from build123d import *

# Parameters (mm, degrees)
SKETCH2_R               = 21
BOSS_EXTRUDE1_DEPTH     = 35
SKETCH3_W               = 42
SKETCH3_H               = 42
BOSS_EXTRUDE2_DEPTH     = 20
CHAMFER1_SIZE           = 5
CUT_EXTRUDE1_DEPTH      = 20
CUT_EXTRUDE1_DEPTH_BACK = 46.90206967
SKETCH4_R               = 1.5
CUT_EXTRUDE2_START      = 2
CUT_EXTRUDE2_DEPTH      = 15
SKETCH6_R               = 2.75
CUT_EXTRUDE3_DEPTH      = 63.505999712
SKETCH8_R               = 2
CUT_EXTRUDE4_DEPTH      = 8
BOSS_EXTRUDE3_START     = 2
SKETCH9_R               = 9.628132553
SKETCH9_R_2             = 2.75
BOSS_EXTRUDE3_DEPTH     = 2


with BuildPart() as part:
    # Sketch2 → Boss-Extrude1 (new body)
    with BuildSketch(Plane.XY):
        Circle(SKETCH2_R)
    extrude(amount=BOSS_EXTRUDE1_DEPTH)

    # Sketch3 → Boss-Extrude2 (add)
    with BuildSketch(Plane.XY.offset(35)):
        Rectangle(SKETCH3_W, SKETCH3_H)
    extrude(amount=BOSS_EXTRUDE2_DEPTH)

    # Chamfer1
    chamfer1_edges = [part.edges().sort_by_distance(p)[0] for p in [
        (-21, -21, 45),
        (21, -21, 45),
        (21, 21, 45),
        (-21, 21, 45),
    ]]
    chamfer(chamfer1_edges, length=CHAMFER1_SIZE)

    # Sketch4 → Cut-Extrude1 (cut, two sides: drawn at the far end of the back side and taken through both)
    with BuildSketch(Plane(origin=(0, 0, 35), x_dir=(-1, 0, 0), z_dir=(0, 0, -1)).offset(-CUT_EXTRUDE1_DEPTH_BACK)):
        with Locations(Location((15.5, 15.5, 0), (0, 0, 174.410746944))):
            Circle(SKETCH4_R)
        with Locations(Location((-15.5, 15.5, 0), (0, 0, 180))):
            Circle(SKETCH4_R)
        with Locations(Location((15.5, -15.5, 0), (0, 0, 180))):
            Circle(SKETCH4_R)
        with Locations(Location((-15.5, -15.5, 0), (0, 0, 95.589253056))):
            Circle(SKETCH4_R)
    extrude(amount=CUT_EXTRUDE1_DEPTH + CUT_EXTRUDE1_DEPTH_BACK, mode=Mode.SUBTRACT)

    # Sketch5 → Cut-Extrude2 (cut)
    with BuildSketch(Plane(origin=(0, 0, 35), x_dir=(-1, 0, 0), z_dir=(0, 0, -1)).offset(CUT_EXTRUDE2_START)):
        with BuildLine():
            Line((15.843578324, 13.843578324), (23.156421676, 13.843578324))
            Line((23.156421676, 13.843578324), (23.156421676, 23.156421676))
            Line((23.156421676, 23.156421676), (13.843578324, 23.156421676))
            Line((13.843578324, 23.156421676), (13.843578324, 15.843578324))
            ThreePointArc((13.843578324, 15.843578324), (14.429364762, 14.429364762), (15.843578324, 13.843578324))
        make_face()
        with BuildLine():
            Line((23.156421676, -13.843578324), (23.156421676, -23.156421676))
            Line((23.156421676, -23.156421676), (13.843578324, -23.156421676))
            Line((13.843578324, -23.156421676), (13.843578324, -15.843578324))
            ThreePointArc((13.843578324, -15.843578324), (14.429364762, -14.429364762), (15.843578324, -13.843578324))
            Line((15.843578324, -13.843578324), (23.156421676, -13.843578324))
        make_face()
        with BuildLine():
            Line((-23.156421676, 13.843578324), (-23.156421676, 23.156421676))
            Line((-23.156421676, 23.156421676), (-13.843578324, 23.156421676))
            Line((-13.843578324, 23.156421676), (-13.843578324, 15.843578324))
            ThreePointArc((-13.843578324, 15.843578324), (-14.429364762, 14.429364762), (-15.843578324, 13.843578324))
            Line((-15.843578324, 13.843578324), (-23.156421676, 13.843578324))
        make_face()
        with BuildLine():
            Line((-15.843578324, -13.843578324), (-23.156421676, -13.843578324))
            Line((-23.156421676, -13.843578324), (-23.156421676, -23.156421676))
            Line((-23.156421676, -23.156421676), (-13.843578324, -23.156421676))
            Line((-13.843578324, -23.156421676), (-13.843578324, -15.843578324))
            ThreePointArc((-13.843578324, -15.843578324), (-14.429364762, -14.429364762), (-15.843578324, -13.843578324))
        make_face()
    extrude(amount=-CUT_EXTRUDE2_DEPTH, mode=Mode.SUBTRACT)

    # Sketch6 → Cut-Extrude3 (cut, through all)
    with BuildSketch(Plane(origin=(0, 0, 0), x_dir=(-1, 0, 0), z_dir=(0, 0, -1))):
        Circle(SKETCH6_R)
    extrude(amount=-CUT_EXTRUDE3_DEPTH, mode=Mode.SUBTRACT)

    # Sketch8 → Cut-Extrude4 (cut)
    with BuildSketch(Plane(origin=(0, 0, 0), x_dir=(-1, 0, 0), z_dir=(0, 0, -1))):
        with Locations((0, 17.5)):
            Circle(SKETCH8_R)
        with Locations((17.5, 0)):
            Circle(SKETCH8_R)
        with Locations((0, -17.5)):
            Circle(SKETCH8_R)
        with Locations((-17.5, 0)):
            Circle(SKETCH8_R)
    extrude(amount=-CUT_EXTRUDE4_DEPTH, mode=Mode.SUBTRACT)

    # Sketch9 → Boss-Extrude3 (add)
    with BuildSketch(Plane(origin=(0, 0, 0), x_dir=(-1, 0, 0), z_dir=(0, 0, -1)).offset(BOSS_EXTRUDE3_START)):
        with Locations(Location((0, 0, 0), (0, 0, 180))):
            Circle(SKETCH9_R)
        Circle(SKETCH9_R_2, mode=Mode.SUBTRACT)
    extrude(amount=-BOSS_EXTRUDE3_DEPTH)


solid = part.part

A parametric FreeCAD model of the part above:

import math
import FreeCAD as App
import Part
import Sketcher
from FreeCAD import Vector
Q = App.Units.Quantity


def edges_at(feature, points):
    """Names of the edges that pass closest to the given points."""
    edges = feature.Shape.Edges
    near = lambda p: min(range(len(edges)), key=lambda i: edges[i].distToShape(Part.Vertex(*p))[0])
    return sorted({f"Edge{near(p) + 1}" for p in points})

doc = App.newDocument("Part")
body = doc.addObject("PartDesign::Body", "Body")

# Sketch on XY plane
sketch1 = body.newObject("Sketcher::SketchObject", "Sketch")
sketch1.AttachmentSupport = (doc.getObject("XY_Plane"), [""])
sketch1.MapMode = "FlatFace"
sketch1.addGeometry(Part.Circle(Vector(0, 0, 0), Vector(0, 0, 1), 21), False)
sketch1.addConstraint(Sketcher.Constraint("Coincident", 0, 3, -1, 1))
sketch1.addConstraint(Sketcher.Constraint("Diameter", 0, Q("42 mm")))
pad1 = body.newObject("PartDesign::Pad", "Pad")
pad1.Profile = sketch1
pad1.Length = 35

# Sketch on XY plane
sketch2 = body.newObject("Sketcher::SketchObject", "Sketch001")
sketch2.AttachmentSupport = (doc.getObject("XY_Plane"), [""])
sketch2.MapMode = "FlatFace"
sketch2.AttachmentOffset = App.Placement(Vector(0, 0, 35), App.Rotation())
sketch2.addGeometry(Part.LineSegment(Vector(-21, 21, 0), Vector(-21, -21, 0)), False)
sketch2.addGeometry(Part.LineSegment(Vector(-21, -21, 0), Vector(21, -21, 0)), False)
sketch2.addGeometry(Part.LineSegment(Vector(21, -21, 0), Vector(21, 21, 0)), False)
sketch2.addGeometry(Part.LineSegment(Vector(21, 21, 0), Vector(-21, 21, 0)), False)
sketch2.addConstraint(Sketcher.Constraint("Coincident", 0, 2, 1, 1))
sketch2.addConstraint(Sketcher.Constraint("Coincident", 1, 2, 2, 1))
sketch2.addConstraint(Sketcher.Constraint("Coincident", 2, 2, 3, 1))
sketch2.addConstraint(Sketcher.Constraint("Coincident", 3, 2, 0, 1))
sketch2.addConstraint(Sketcher.Constraint("Vertical", 0))
sketch2.addConstraint(Sketcher.Constraint("Horizontal", 1))
sketch2.addConstraint(Sketcher.Constraint("Vertical", 2))
sketch2.addConstraint(Sketcher.Constraint("Horizontal", 3))
sketch2.addConstraint(Sketcher.Constraint("Symmetric", 0, 2, 2, 2, -1, 1))
sketch2.addConstraint(Sketcher.Constraint("Equal", 3, 0))
sketch2.addConstraint(Sketcher.Constraint("DistanceX", 1, 1, 1, 2, Q("42 mm")))
pad2 = body.newObject("PartDesign::Pad", "Pad001")
pad2.Profile = sketch2
pad2.Length = 20
doc.recompute()

chamfer = body.newObject("PartDesign::Chamfer", "Chamfer")
chamfer.Base = (pad2, edges_at(pad2, [
    (-21, -21, 45),
    (21, -21, 45),
    (21, 21, 45),
    (-21, 21, 45),
]))
chamfer.Size = 5

# Sketch on XY plane
sketch3 = body.newObject("Sketcher::SketchObject", "Sketch002")
sketch3.AttachmentSupport = (doc.getObject("XY_Plane"), [""])
sketch3.MapMode = "FlatFace"
sketch3.AttachmentOffset = App.Placement(Vector(0, 0, 35), App.Rotation())
sketch3.addGeometry(Part.Circle(Vector(-15.5, 15.5, 0), Vector(0, 0, 1), 1.5), False)
sketch3.addGeometry(Part.Circle(Vector(15.5, 15.5, 0), Vector(0, 0, 1), 1.5), False)
sketch3.addGeometry(Part.Circle(Vector(-15.5, -15.5, 0), Vector(0, 0, 1), 1.5), False)
sketch3.addGeometry(Part.Circle(Vector(15.5, -15.5, 0), Vector(0, 0, 1), 1.5), False)
sketch3.addConstraint(Sketcher.Constraint("Equal", 0, 1))
sketch3.addConstraint(Sketcher.Constraint("Equal", 1, 2))
sketch3.addConstraint(Sketcher.Constraint("Equal", 2, 3))
sketch3.addConstraint(Sketcher.Constraint("Symmetric", 1, 3, 2, 3, -1, 1))
sketch3.addConstraint(Sketcher.Constraint("Symmetric", 0, 3, 3, 3, -1, 1))
sketch3.addConstraint(Sketcher.Constraint("Symmetric", 0, 3, 1, 3, -2))
sketch3.addConstraint(Sketcher.Constraint("Diameter", 0, Q("3 mm")))
sketch3.addConstraint(Sketcher.Constraint("DistanceX", 0, 3, 1, 3, Q("31 mm")))
sketch3.addConstraint(Sketcher.Constraint("DistanceY", 2, 3, 0, 3, Q("31 mm")))
pocket1 = body.newObject("PartDesign::Pocket", "Pocket")
pocket1.Profile = sketch3
pocket1.Type = "TwoLengths"
pocket1.Length = 20
pocket1.Length2 = 46.90207

# Sketch on XY plane
sketch4 = body.newObject("Sketcher::SketchObject", "Sketch003")
sketch4.AttachmentSupport = (doc.getObject("XY_Plane"), [""])
sketch4.MapMode = "FlatFace"
sketch4.AttachmentOffset = App.Placement(Vector(0, 0, 33), App.Rotation())
sketch4.addGeometry(Part.LineSegment(Vector(-15.8, 13.8, 0), Vector(-23.2, 13.8, 0)), False)
sketch4.addGeometry(Part.LineSegment(Vector(-23.2, 13.8, 0), Vector(-23.2, 23.2, 0)), False)
sketch4.addGeometry(Part.LineSegment(Vector(-23.2, 23.2, 0), Vector(-13.8, 23.2, 0)), False)
sketch4.addGeometry(Part.LineSegment(Vector(-13.8, 23.2, 0), Vector(-13.8, 15.8, 0)), False)
sketch4.addGeometry(Part.ArcOfCircle(Part.Circle(Vector(-15.8, 15.8, 0), Vector(0, 0, 1), 2), math.radians(-90), math.radians(0)), False)
sketch4.addGeometry(Part.LineSegment(Vector(-23.2, -23.2, 0), Vector(-23.2, -13.8, 0)), False)
sketch4.addGeometry(Part.LineSegment(Vector(-23.2, -13.8, 0), Vector(-15.8, -13.8, 0)), False)
sketch4.addGeometry(Part.ArcOfCircle(Part.Circle(Vector(-15.8, -15.8, 0), Vector(0, 0, 1), 2), math.radians(0), math.radians(90)), False)
sketch4.addGeometry(Part.LineSegment(Vector(-13.8, -15.8, 0), Vector(-13.8, -23.2, 0)), False)
sketch4.addGeometry(Part.LineSegment(Vector(-13.8, -23.2, 0), Vector(-23.2, -23.2, 0)), False)
sketch4.addGeometry(Part.LineSegment(Vector(23.2, 23.2, 0), Vector(23.2, 13.8, 0)), False)
sketch4.addGeometry(Part.LineSegment(Vector(23.2, 13.8, 0), Vector(15.8, 13.8, 0)), False)
sketch4.addGeometry(Part.ArcOfCircle(Part.Circle(Vector(15.8, 15.8, 0), Vector(0, 0, 1), 2), math.radians(-180), math.radians(-90)), False)
sketch4.addGeometry(Part.LineSegment(Vector(13.8, 15.8, 0), Vector(13.8, 23.2, 0)), False)
sketch4.addGeometry(Part.LineSegment(Vector(13.8, 23.2, 0), Vector(23.2, 23.2, 0)), False)
sketch4.addGeometry(Part.LineSegment(Vector(15.8, -13.8, 0), Vector(23.2, -13.8, 0)), False)
sketch4.addGeometry(Part.LineSegment(Vector(23.2, -13.8, 0), Vector(23.2, -23.2, 0)), False)
sketch4.addGeometry(Part.LineSegment(Vector(23.2, -23.2, 0), Vector(13.8, -23.2, 0)), False)
sketch4.addGeometry(Part.LineSegment(Vector(13.8, -23.2, 0), Vector(13.8, -15.8, 0)), False)
sketch4.addGeometry(Part.ArcOfCircle(Part.Circle(Vector(15.8, -15.8, 0), Vector(0, 0, 1), 2), math.radians(90), math.radians(180)), False)
sketch4.addConstraint(Sketcher.Constraint("Coincident", 0, 2, 1, 1))
sketch4.addConstraint(Sketcher.Constraint("Coincident", 1, 2, 2, 1))
sketch4.addConstraint(Sketcher.Constraint("Coincident", 2, 2, 3, 1))
sketch4.addConstraint(Sketcher.Constraint("Tangent", 3, 2, 4, 2))
sketch4.addConstraint(Sketcher.Constraint("Tangent", 4, 1, 0, 1))
sketch4.addConstraint(Sketcher.Constraint("Coincident", 5, 2, 6, 1))
sketch4.addConstraint(Sketcher.Constraint("Tangent", 6, 2, 7, 2))
sketch4.addConstraint(Sketcher.Constraint("Tangent", 7, 1, 8, 1))
sketch4.addConstraint(Sketcher.Constraint("Coincident", 8, 2, 9, 1))
sketch4.addConstraint(Sketcher.Constraint("Coincident", 9, 2, 5, 1))
sketch4.addConstraint(Sketcher.Constraint("Coincident", 10, 2, 11, 1))
sketch4.addConstraint(Sketcher.Constraint("Tangent", 11, 2, 12, 2))
sketch4.addConstraint(Sketcher.Constraint("Tangent", 12, 1, 13, 1))
sketch4.addConstraint(Sketcher.Constraint("Coincident", 13, 2, 14, 1))
sketch4.addConstraint(Sketcher.Constraint("Coincident", 14, 2, 10, 1))
sketch4.addConstraint(Sketcher.Constraint("Coincident", 15, 2, 16, 1))
sketch4.addConstraint(Sketcher.Constraint("Coincident", 16, 2, 17, 1))
sketch4.addConstraint(Sketcher.Constraint("Coincident", 17, 2, 18, 1))
sketch4.addConstraint(Sketcher.Constraint("Tangent", 18, 2, 19, 2))
sketch4.addConstraint(Sketcher.Constraint("Tangent", 19, 1, 15, 1))
sketch4.addConstraint(Sketcher.Constraint("Horizontal", 0))
sketch4.addConstraint(Sketcher.Constraint("Vertical", 1))
sketch4.addConstraint(Sketcher.Constraint("Horizontal", 2))
sketch4.addConstraint(Sketcher.Constraint("Vertical", 3))
sketch4.addConstraint(Sketcher.Constraint("Vertical", 5))
sketch4.addConstraint(Sketcher.Constraint("Horizontal", 6))
sketch4.addConstraint(Sketcher.Constraint("Vertical", 8))
sketch4.addConstraint(Sketcher.Constraint("Horizontal", 9))
sketch4.addConstraint(Sketcher.Constraint("Vertical", 10))
sketch4.addConstraint(Sketcher.Constraint("Horizontal", 11))
sketch4.addConstraint(Sketcher.Constraint("Vertical", 13))
sketch4.addConstraint(Sketcher.Constraint("Horizontal", 14))
sketch4.addConstraint(Sketcher.Constraint("Horizontal", 15))
sketch4.addConstraint(Sketcher.Constraint("Vertical", 16))
sketch4.addConstraint(Sketcher.Constraint("Horizontal", 17))
sketch4.addConstraint(Sketcher.Constraint("Vertical", 18))
sketch4.addConstraint(Sketcher.Constraint("Equal", 4, 7))
sketch4.addConstraint(Sketcher.Constraint("Equal", 7, 12))
sketch4.addConstraint(Sketcher.Constraint("Equal", 12, 19))
sketch4.addConstraint(Sketcher.Constraint("Symmetric", 7, 3, 12, 3, -1, 1))
sketch4.addConstraint(Sketcher.Constraint("Symmetric", 4, 3, 19, 3, -1, 1))
sketch4.addConstraint(Sketcher.Constraint("Symmetric", 9, 2, 14, 2, -1, 1))
sketch4.addConstraint(Sketcher.Constraint("Symmetric", 1, 2, 16, 2, -1, 1))
sketch4.addConstraint(Sketcher.Constraint("Symmetric", 4, 3, 12, 3, -2))
sketch4.addConstraint(Sketcher.Constraint("Symmetric", 1, 2, 14, 2, -2))
sketch4.addConstraint(Sketcher.Constraint("Equal", 17, 1))
sketch4.addConstraint(Sketcher.Constraint("Radius", 4, Q("2 mm")))
sketch4.addConstraint(Sketcher.Constraint("DistanceX", 0, 2, 12, 3, Q("39 mm")))
sketch4.addConstraint(Sketcher.Constraint("DistanceY", 7, 3, 1, 2, Q("39 mm")))
sketch4.addConstraint(Sketcher.Constraint("DistanceX", 0, 2, 0, 1, Q("7.312843 mm")))
pocket2 = body.newObject("PartDesign::Pocket", "Pocket001")
pocket2.Profile = sketch4
pocket2.Length = 15
pocket2.Reversed = True

# Sketch on XY plane
sketch5 = body.newObject("Sketcher::SketchObject", "Sketch004")
sketch5.AttachmentSupport = (doc.getObject("XY_Plane"), [""])
sketch5.MapMode = "FlatFace"
sketch5.addGeometry(Part.Circle(Vector(0, 0, 0), Vector(0, 0, 1), 2.8), False)
sketch5.addConstraint(Sketcher.Constraint("Coincident", 0, 3, -1, 1))
sketch5.addConstraint(Sketcher.Constraint("Diameter", 0, Q("5.5 mm")))
pocket3 = body.newObject("PartDesign::Pocket", "Pocket002")
pocket3.Profile = sketch5
pocket3.Type = "ThroughAll"
pocket3.Reversed = True

# Sketch on XY plane
sketch6 = body.newObject("Sketcher::SketchObject", "Sketch005")
sketch6.AttachmentSupport = (doc.getObject("XY_Plane"), [""])
sketch6.MapMode = "FlatFace"
sketch6.addGeometry(Part.Circle(Vector(0, 17.5, 0), Vector(0, 0, 1), 2), False)
sketch6.addGeometry(Part.Circle(Vector(-17.5, 0, 0), Vector(0, 0, 1), 2), False)
sketch6.addGeometry(Part.Circle(Vector(0, -17.5, 0), Vector(0, 0, 1), 2), False)
sketch6.addGeometry(Part.Circle(Vector(17.5, 0, 0), Vector(0, 0, 1), 2), False)
sketch6.addConstraint(Sketcher.Constraint("Equal", 0, 1))
sketch6.addConstraint(Sketcher.Constraint("Equal", 1, 2))
sketch6.addConstraint(Sketcher.Constraint("Equal", 2, 3))
sketch6.addConstraint(Sketcher.Constraint("Symmetric", 0, 3, 2, 3, -1, 1))
sketch6.addConstraint(Sketcher.Constraint("Symmetric", 1, 3, 3, 3, -1, 1))
sketch6.addConstraint(Sketcher.Constraint("PointOnObject", 0, 3, -2))
sketch6.addConstraint(Sketcher.Constraint("PointOnObject", 1, 3, -1))
sketch6.addConstraint(Sketcher.Constraint("Diameter", 0, Q("4 mm")))
sketch6.addConstraint(Sketcher.Constraint("DistanceY", 2, 3, 0, 3, Q("35 mm")))
sketch6.addConstraint(Sketcher.Constraint("DistanceX", 1, 3, 3, 3, Q("35 mm")))
pocket4 = body.newObject("PartDesign::Pocket", "Pocket003")
pocket4.Profile = sketch6
pocket4.Length = 8
pocket4.Reversed = True

# Sketch on XY plane
sketch7 = body.newObject("Sketcher::SketchObject", "Sketch006")
sketch7.AttachmentSupport = (doc.getObject("XY_Plane"), [""])
sketch7.MapMode = "FlatFace"
sketch7.AttachmentOffset = App.Placement(Vector(0, 0, -2), App.Rotation())
sketch7.addGeometry(Part.Circle(Vector(0, 0, 0), Vector(0, 0, 1), 9.6), False)
sketch7.addGeometry(Part.Circle(Vector(0, 0, 0), Vector(0, 0, 1), 2.8), False)
sketch7.addConstraint(Sketcher.Constraint("Coincident", 0, 3, -1, 1))
sketch7.addConstraint(Sketcher.Constraint("Coincident", 1, 3, -1, 1))
sketch7.addConstraint(Sketcher.Constraint("Diameter", 1, Q("5.5 mm")))
sketch7.addConstraint(Sketcher.Constraint("Diameter", 0, Q("19.256265 mm")))
pad3 = body.newObject("PartDesign::Pad", "Pad002")
pad3.Profile = sketch7
pad3.Length = 2

doc.recompute()
